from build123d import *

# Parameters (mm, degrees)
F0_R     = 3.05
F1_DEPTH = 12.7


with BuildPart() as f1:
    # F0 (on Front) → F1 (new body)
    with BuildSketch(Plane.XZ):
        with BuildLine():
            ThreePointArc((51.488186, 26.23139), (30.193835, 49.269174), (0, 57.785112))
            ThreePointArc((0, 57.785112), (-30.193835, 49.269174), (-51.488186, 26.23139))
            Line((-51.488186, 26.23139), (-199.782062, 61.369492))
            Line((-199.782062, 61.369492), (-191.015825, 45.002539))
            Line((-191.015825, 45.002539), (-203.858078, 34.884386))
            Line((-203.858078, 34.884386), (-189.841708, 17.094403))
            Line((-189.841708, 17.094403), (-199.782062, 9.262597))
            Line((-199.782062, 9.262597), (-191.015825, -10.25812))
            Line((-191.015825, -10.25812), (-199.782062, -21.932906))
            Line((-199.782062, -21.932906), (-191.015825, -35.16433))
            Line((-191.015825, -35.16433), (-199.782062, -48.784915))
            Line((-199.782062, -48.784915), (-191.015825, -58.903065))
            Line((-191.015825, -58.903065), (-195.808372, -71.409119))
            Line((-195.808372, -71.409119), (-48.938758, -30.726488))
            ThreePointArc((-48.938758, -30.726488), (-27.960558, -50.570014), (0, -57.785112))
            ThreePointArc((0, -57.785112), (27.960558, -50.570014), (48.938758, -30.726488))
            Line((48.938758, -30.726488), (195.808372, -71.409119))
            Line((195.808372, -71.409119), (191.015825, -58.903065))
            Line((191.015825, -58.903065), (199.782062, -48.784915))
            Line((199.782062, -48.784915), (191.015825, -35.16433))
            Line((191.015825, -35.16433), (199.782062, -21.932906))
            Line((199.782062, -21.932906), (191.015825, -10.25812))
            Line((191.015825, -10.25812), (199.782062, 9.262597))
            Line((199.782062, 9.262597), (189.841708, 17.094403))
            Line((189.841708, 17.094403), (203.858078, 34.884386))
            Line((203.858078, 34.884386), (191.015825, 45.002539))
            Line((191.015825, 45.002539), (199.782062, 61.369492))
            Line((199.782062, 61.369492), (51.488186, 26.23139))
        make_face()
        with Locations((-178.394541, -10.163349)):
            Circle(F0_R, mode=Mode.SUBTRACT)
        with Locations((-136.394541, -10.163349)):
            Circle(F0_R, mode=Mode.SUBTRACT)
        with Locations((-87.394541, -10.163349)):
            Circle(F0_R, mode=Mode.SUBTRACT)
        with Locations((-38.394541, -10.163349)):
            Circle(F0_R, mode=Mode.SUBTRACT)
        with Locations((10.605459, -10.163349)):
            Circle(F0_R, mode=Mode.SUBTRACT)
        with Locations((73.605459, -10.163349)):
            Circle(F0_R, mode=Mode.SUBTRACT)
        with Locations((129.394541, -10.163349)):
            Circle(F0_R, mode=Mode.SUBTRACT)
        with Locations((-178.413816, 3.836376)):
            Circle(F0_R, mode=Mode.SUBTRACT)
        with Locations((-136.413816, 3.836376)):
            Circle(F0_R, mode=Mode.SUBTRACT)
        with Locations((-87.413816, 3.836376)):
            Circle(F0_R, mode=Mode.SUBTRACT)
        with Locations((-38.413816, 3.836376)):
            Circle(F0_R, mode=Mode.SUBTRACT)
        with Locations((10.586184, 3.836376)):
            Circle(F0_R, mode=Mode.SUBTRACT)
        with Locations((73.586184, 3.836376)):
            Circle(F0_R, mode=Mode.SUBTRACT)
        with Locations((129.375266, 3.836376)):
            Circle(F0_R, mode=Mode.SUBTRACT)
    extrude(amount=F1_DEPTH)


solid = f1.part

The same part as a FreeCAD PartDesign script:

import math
import FreeCAD as App
import Part
import Sketcher

V = App.Vector
Q = App.Units.Quantity

doc = App.newDocument("Part")
params = doc.addObject("Spreadsheet::Sheet", "Params")
for row, (alias, value) in enumerate([
    ("sketch1_length", "6 in"),
    ("pad1_length", "0.5 in"),
], start=1):
    params.set(f"A{row}", alias)
    params.set(f"B{row}", "=" + value)
    params.setAlias(f"B{row}", alias)

body = doc.addObject("PartDesign::Body", "Body")

sketch1 = body.newObject("Sketcher::SketchObject", "Sketch")
sketch1.AttachmentSupport = (doc.getObject("XZ_Plane"), [""])
sketch1.MapMode = "FlatFace"
sketch1.addGeometry(Part.ArcOfCircle(Part.Circle(V(0.000001, 0.000002, 0), V(0, 0, 1), 57.78511), math.radians(26.997215), math.radians(90.000001)), False)
sketch1.addGeometry(Part.ArcOfCircle(Part.Circle(V(-0.000001, 0.000002, 0), V(0, 0, 1), 57.78511), math.radians(89.999999), math.radians(153.002785)), False)
sketch1.addGeometry(Part.LineSegment(V(-51.488186, 26.23139, 0), V(-199.782062, 61.369492, 0)), False)
sketch1.addGeometry(Part.LineSegment(V(-199.782062, 61.369492, 0), V(-191.015825, 45.002539, 0)), False)
sketch1.addGeometry(Part.LineSegment(V(-191.015825, 45.002539, 0), V(-203.858078, 34.884386, 0)), False)
sketch1.addGeometry(Part.LineSegment(V(-203.858078, 34.884386, 0), V(-189.841708, 17.094403, 0)), False)
sketch1.addGeometry(Part.LineSegment(V(-189.841708, 17.094403, 0), V(-199.782062, 9.262597, 0)), False)
sketch1.addGeometry(Part.LineSegment(V(-199.782062, 9.262597, 0), V(-191.015825, -10.25812, 0)), False)
sketch1.addGeometry(Part.LineSegment(V(-191.015825, -10.25812, 0), V(-199.782062, -21.932906, 0)), False)
sketch1.addGeometry(Part.LineSegment(V(-199.782062, -21.932906, 0), V(-191.015825, -35.16433, 0)), False)
sketch1.addGeometry(Part.LineSegment(V(-191.015825, -35.16433, 0), V(-199.782062, -48.784915, 0)), False)
sketch1.addGeometry(Part.LineSegment(V(-199.782062, -48.784915, 0), V(-191.015825, -58.903065, 0)), False)
sketch1.addGeometry(Part.LineSegment(V(-191.015825, -58.903065, 0), V(-195.808372, -71.409119, 0)), False)
sketch1.addGeometry(Part.LineSegment(V(-195.808372, -71.409119, 0), V(-48.938758, -30.726488, 0)), False)
sketch1.addGeometry(Part.ArcOfCircle(Part.Circle(V(0.000001, 0.000001, 0), V(0, 0, 1), 57.785113), math.radians(-147.877101), math.radians(-90.000001)), False)
sketch1.addGeometry(Part.ArcOfCircle(Part.Circle(V(-0.000001, 0.000001, 0), V(0, 0, 1), 57.785113), math.radians(-89.999999), math.radians(-32.122899)), False)
sketch1.addGeometry(Part.LineSegment(V(48.938758, -30.726488, 0), V(195.808372, -71.409119, 0)), False)
sketch1.addGeometry(Part.LineSegment(V(195.808372, -71.409119, 0), V(191.015825, -58.903065, 0)), False)
sketch1.addGeometry(Part.LineSegment(V(191.015825, -58.903065, 0), V(199.782062, -48.784915, 0)), False)
sketch1.addGeometry(Part.LineSegment(V(199.782062, -48.784915, 0), V(191.015825, -35.16433, 0)), False)
sketch1.addGeometry(Part.LineSegment(V(191.015825, -35.16433, 0), V(199.782062, -21.932906, 0)), False)
sketch1.addGeometry(Part.LineSegment(V(199.782062, -21.932906, 0), V(191.015825, -10.25812, 0)), False)
sketch1.addGeometry(Part.LineSegment(V(191.015825, -10.25812, 0), V(199.782062, 9.262597, 0)), False)
sketch1.addGeometry(Part.LineSegment(V(199.782062, 9.262597, 0), V(189.841708, 17.094403, 0)), False)
sketch1.addGeometry(Part.LineSegment(V(189.841708, 17.094403, 0), V(203.858078, 34.884386, 0)), False)
sketch1.addGeometry(Part.LineSegment(V(203.858078, 34.884386, 0), V(191.015825, 45.002539, 0)), False)
sketch1.addGeometry(Part.LineSegment(V(191.015825, 45.002539, 0), V(199.782062, 61.369492, 0)), False)
sketch1.addGeometry(Part.LineSegment(V(199.782062, 61.369492, 0), V(51.488186, 26.23139, 0)), False)
sketch1.addGeometry(Part.Circle(V(-178.394541, -10.163349, 0), V(0, 0, 1), 3.05), False)
sketch1.addGeometry(Part.Circle(V(-136.394541, -10.163349, 0), V(0, 0, 1), 3.05), False)
sketch1.addGeometry(Part.Circle(V(-87.394541, -10.163349, 0), V(0, 0, 1), 3.05), False)
sketch1.addGeometry(Part.Circle(V(-38.394541, -10.163349, 0), V(0, 0, 1), 3.05), False)
sketch1.addGeometry(Part.Circle(V(10.605459, -10.163349, 0), V(0, 0, 1), 3.05), False)
sketch1.addGeometry(Part.Circle(V(73.605459, -10.163349, 0), V(0, 0, 1), 3.05), False)
sketch1.addGeometry(Part.Circle(V(129.394541, -10.163349, 0), V(0, 0, 1), 3.05), False)
sketch1.addGeometry(Part.Circle(V(-178.413816, 3.836376, 0), V(0, 0, 1), 3.05), False)
sketch1.addGeometry(Part.Circle(V(-136.413816, 3.836376, 0), V(0, 0, 1), 3.05), False)
sketch1.addGeometry(Part.Circle(V(-87.413816, 3.836376, 0), V(0, 0, 1), 3.05), False)
sketch1.addGeometry(Part.Circle(V(-38.413816, 3.836376, 0), V(0, 0, 1), 3.05), False)
sketch1.addGeometry(Part.Circle(V(10.586184, 3.836376, 0), V(0, 0, 1), 3.05), False)
sketch1.addGeometry(Part.Circle(V(73.586184, 3.836376, 0), V(0, 0, 1), 3.05), False)
sketch1.addGeometry(Part.Circle(V(129.375266, 3.836376, 0), V(0, 0, 1), 3.05), False)
sketch1.addConstraint(Sketcher.Constraint("Tangent", 0, 2, 1, 1))
sketch1.addConstraint(Sketcher.Constraint("Coincident", 1, 2, 2, 1))
sketch1.addConstraint(Sketcher.Constraint("Coincident", 2, 2, 3, 1))
sketch1.addConstraint(Sketcher.Constraint("Coincident", 3, 2, 4, 1))
sketch1.addConstraint(Sketcher.Constraint("Coincident", 4, 2, 5, 1))
sketch1.addConstraint(Sketcher.Constraint("Coincident", 5, 2, 6, 1))
sketch1.addConstraint(Sketcher.Constraint("Coincident", 6, 2, 7, 1))
sketch1.addConstraint(Sketcher.Constraint("Coincident", 7, 2, 8, 1))
sketch1.addConstraint(Sketcher.Constraint("Coincident", 8, 2, 9, 1))
sketch1.addConstraint(Sketcher.Constraint("Coincident", 9, 2, 10, 1))
sketch1.addConstraint(Sketcher.Constraint("Coincident", 10, 2, 11, 1))
sketch1.addConstraint(Sketcher.Constraint("Coincident", 11, 2, 12, 1))
sketch1.addConstraint(Sketcher.Constraint("Coincident", 12, 2, 13, 1))
sketch1.addConstraint(Sketcher.Constraint("Coincident", 13, 2, 14, 1))
sketch1.addConstraint(Sketcher.Constraint("Tangent", 14, 2, 15, 1))
sketch1.addConstraint(Sketcher.Constraint("Coincident", 15, 2, 16, 1))
sketch1.addConstraint(Sketcher.Constraint("Coincident", 16, 2, 17, 1))
sketch1.addConstraint(Sketcher.Constraint("Coincident", 17, 2, 18, 1))
sketch1.addConstraint(Sketcher.Constraint("Coincident", 18, 2, 19, 1))
sketch1.addConstraint(Sketcher.Constraint("Coincident", 19, 2, 20, 1))
sketch1.addConstraint(Sketcher.Constraint("Coincident", 20, 2, 21, 1))
sketch1.addConstraint(Sketcher.Constraint("Coincident", 21, 2, 22, 1))
sketch1.addConstraint(Sketcher.Constraint("Coincident", 22, 2, 23, 1))
sketch1.addConstraint(Sketcher.Constraint("Coincident", 23, 2, 24, 1))
sketch1.addConstraint(Sketcher.Constraint("Coincident", 24, 2, 25, 1))
sketch1.addConstraint(Sketcher.Constraint("Coincident", 25, 2, 26, 1))
sketch1.addConstraint(Sketcher.Constraint("Coincident", 26, 2, 27, 1))
sketch1.addConstraint(Sketcher.Constraint("Coincident", 27, 2, 0, 1))
sketch1.addConstraint(Sketcher.Constraint("Coincident", 0, 3, -1, 1))
sketch1.addConstraint(Sketcher.Constraint("Coincident", 14, 3, -1, 1))
sketch1.addConstraint(Sketcher.Constraint("Equal", 0, 1))
sketch1.addConstraint(Sketcher.Constraint("Equal", 14, 15))
sketch1.addConstraint(Sketcher.Constraint("Equal", 28, 29))
sketch1.addConstraint(Sketcher.Constraint("Equal", 29, 30))
sketch1.addConstraint(Sketcher.Constraint("Equal", 30, 31))
sketch1.addConstraint(Sketcher.Constraint("Equal", 31, 32))
sketch1.addConstraint(Sketcher.Constraint("Equal", 32, 33))
sketch1.addConstraint(Sketcher.Constraint("Equal", 33, 34))
sketch1.addConstraint(Sketcher.Constraint("Equal", 34, 35))
sketch1.addConstraint(Sketcher.Constraint("Equal", 35, 36))
sketch1.addConstraint(Sketcher.Constraint("Equal", 36, 37))
sketch1.addConstraint(Sketcher.Constraint("Equal", 37, 38))
sketch1.addConstraint(Sketcher.Constraint("Equal", 38, 39))
sketch1.addConstraint(Sketcher.Constraint("Equal", 39, 40))
sketch1.addConstraint(Sketcher.Constraint("Equal", 40, 41))
sketch1.addConstraint(Sketcher.Constraint("Symmetric", 0, 2, 14, 2, -1, 1))
sketch1.addConstraint(Sketcher.Constraint("Symmetric", 12, 2, 16, 2, -2))
sketch1.addConstraint(Sketcher.Constraint("Symmetric", 11, 2, 17, 2, -2))
sketch1.addConstraint(Sketcher.Constraint("Symmetric", 10, 2, 18, 2, -2))
sketch1.addConstraint(Sketcher.Constraint("Symmetric", 9, 2, 19, 2, -2))
sketch1.addConstraint(Sketcher.Constraint("Symmetric", 8, 2, 20, 2, -2))
sketch1.addConstraint(Sketcher.Constraint("Symmetric", 7, 2, 21, 2, -2))
sketch1.addConstraint(Sketcher.Constraint("Symmetric", 6, 2, 22, 2, -2))
sketch1.addConstraint(Sketcher.Constraint("Symmetric", 5, 2, 23, 2, -2))
sketch1.addConstraint(Sketcher.Constraint("Symmetric", 4, 2, 24, 2, -2))
sketch1.addConstraint(Sketcher.Constraint("Symmetric", 3, 2, 25, 2, -2))
sketch1.addConstraint(Sketcher.Constraint("Symmetric", 2, 2, 26, 2, -2))
sketch1.addConstraint(Sketcher.Constraint("PointOnObject", 0, 2, -2))
sketch1.addConstraint(Sketcher.Constraint("Perpendicular", 4, 5))
sketch1.addConstraint(Sketcher.Constraint("Perpendicular", 5, 6))
sketch1.addConstraint(Sketcher.Constraint("Horizontal", 28, 3, 29, 3))
sketch1.addConstraint(Sketcher.Constraint("Horizontal", 29, 3, 30, 3))
sketch1.addConstraint(Sketcher.Constraint("Horizontal", 30, 3, 31, 3))
sketch1.addConstraint(Sketcher.Constraint("Horizontal", 31, 3, 32, 3))
sketch1.addConstraint(Sketcher.Constraint("Horizontal", 32, 3, 33, 3))
sketch1.addConstraint(Sketcher.Constraint("Horizontal", 33, 3, 34, 3))
sketch1.addConstraint(Sketcher.Constraint("Horizontal", 35, 3, 36, 3))
sketch1.addConstraint(Sketcher.Constraint("Horizontal", 36, 3, 37, 3))
sketch1.addConstraint(Sketcher.Constraint("Horizontal", 37, 3, 38, 3))
sketch1.addConstraint(Sketcher.Constraint("Horizontal", 38, 3, 39, 3))
sketch1.addConstraint(Sketcher.Constraint("Horizontal", 39, 3, 40, 3))
sketch1.addConstraint(Sketcher.Constraint("Horizontal", 40, 3, 41, 3))
sketch1.addConstraint(Sketcher.Constraint("Horizontal", 13, 2, 15, 2))
sketch1.addConstraint(Sketcher.Constraint("Horizontal", 1, 2, 27, 2))
sketch1.addConstraint(Sketcher.Constraint("Vertical", 2, 2, 6, 2))
sketch1.addConstraint(Sketcher.Constraint("Vertical", 3, 2, 7, 2))
sketch1.addConstraint(Sketcher.Constraint("Vertical", 6, 2, 8, 2))
sketch1.addConstraint(Sketcher.Constraint("Vertical", 7, 2, 9, 2))
sketch1.addConstraint(Sketcher.Constraint("Vertical", 8, 2, 10, 2))
sketch1.addConstraint(Sketcher.Constraint("Vertical", 9, 2, 11, 2))
sketch1.addConstraint(Sketcher.Constraint("Equal", 2, 13))
sketch1.addConstraint(Sketcher.Constraint("Distance", 2, Q("6 in")))
sketch1.addConstraint(Sketcher.Constraint("Diameter", 28, Q("6.1 mm")))
sketch1.addConstraint(Sketcher.Constraint("DistanceX", 27, 2, 40, 3, Q("0.8699999 in")))
sketch1.addConstraint(Sketcher.Constraint("Radius", 0, Q("57.78511 mm")))
sketch1.addConstraint(Sketcher.Constraint("DistanceY", 14, 2, 13, 2, Q("1.0653002 in")))
sketch1.addConstraint(Sketcher.Constraint("DistanceX", 28, 3, 29, 3, Q("42 mm")))
sketch1.addConstraint(Sketcher.Constraint("DistanceX", 29, 3, 30, 3, Q("49 mm")))
sketch1.addConstraint(Sketcher.Constraint("DistanceX", 30, 3, 31, 3, Q("49 mm")))
sketch1.addConstraint(Sketcher.Constraint("DistanceX", 31, 3, 32, 3, Q("49 mm")))
sketch1.addConstraint(Sketcher.Constraint("DistanceX", 32, 3, 33, 3, Q("63 mm")))
sketch1.addConstraint(Sketcher.Constraint("DistanceX", 35, 3, 36, 3, Q("42 mm")))
sketch1.addConstraint(Sketcher.Constraint("DistanceX", 36, 3, 37, 3, Q("49 mm")))
sketch1.addConstraint(Sketcher.Constraint("DistanceX", 39, 3, 40, 3, Q("63 mm")))
sketch1.addConstraint(Sketcher.Constraint("DistanceY", 12, 2, 7, 2, Q("61.150999 mm")))
sketch1.addConstraint(Sketcher.Constraint("DistanceX", 15, 2, 33, 3, Q("24.666701 mm")))
sketch1.addConstraint(Sketcher.Constraint("Distance", 9, Q("15.871909 mm")))
sketch1.addConstraint(Sketcher.Constraint("Distance", 11, Q("13.387452 mm")))
sketch1.addConstraint(Sketcher.Constraint("DistanceY", 28, 3, -1, 1, Q("10.163349 mm")))
sketch1.addConstraint(Sketcher.Constraint("DistanceX", -1, 1, 34, 3, Q("129.394541 mm")))
sketch1.addConstraint(Sketcher.Constraint("DistanceY", -1, 1, 1, 2, Q("26.23139 mm")))
sketch1.addConstraint(Sketcher.Constraint("DistanceX", 2, 2, -1, 1, Q("199.782062 mm")))
sketch1.addConstraint(Sketcher.Constraint("DistanceY", -1, 1, 3, 2, Q("45.002539 mm")))
sketch1.addConstraint(Sketcher.Constraint("DistanceX", 4, 2, -1, 1, Q("203.858078 mm")))
sketch1.addConstraint(Sketcher.Constraint("DistanceX", 5, 2, -1, 1, Q("189.841708 mm")))
sketch1.addConstraint(Sketcher.Constraint("DistanceY", 7, 2, -1, 1, Q("10.25812 mm")))
sketch1.addConstraint(Sketcher.Constraint("DistanceY", 9, 2, -1, 1, Q("35.16433 mm")))
sketch1.addConstraint(Sketcher.Constraint("DistanceX", 1, 2, 38, 3, Q("13.07437 mm")))
sketch1.addConstraint(Sketcher.Constraint("DistanceX", 37, 3, 1, 2, Q("35.92563 mm")))
sketch1.addConstraint(Sketcher.Constraint("DistanceX", 3, 2, 35, 3, Q("12.602009 mm")))
sketch1.addConstraint(Sketcher.Constraint("DistanceY", 35, 3, 4, 2, Q("31.04801 mm")))
sketch1.addConstraint(Sketcher.Constraint("DistanceY", 28, 3, 5, 2, Q("27.257752 mm")))
sketch1.addConstraint(Sketcher.Constraint("DistanceY", 10, 2, 8, 2, Q("26.852009 mm")))
sketch1.addConstraint(Sketcher.Constraint("DistanceX", 41, 3, 17, 2, Q("61.640559 mm")))
sketch1.setExpression("Constraints[81]", "Params.sketch1_length")
pad1 = body.newObject("PartDesign::Pad", "Pad")
pad1.Profile = sketch1
pad1.setExpression("Length", "Params.pad1_length")

doc.recompute()
